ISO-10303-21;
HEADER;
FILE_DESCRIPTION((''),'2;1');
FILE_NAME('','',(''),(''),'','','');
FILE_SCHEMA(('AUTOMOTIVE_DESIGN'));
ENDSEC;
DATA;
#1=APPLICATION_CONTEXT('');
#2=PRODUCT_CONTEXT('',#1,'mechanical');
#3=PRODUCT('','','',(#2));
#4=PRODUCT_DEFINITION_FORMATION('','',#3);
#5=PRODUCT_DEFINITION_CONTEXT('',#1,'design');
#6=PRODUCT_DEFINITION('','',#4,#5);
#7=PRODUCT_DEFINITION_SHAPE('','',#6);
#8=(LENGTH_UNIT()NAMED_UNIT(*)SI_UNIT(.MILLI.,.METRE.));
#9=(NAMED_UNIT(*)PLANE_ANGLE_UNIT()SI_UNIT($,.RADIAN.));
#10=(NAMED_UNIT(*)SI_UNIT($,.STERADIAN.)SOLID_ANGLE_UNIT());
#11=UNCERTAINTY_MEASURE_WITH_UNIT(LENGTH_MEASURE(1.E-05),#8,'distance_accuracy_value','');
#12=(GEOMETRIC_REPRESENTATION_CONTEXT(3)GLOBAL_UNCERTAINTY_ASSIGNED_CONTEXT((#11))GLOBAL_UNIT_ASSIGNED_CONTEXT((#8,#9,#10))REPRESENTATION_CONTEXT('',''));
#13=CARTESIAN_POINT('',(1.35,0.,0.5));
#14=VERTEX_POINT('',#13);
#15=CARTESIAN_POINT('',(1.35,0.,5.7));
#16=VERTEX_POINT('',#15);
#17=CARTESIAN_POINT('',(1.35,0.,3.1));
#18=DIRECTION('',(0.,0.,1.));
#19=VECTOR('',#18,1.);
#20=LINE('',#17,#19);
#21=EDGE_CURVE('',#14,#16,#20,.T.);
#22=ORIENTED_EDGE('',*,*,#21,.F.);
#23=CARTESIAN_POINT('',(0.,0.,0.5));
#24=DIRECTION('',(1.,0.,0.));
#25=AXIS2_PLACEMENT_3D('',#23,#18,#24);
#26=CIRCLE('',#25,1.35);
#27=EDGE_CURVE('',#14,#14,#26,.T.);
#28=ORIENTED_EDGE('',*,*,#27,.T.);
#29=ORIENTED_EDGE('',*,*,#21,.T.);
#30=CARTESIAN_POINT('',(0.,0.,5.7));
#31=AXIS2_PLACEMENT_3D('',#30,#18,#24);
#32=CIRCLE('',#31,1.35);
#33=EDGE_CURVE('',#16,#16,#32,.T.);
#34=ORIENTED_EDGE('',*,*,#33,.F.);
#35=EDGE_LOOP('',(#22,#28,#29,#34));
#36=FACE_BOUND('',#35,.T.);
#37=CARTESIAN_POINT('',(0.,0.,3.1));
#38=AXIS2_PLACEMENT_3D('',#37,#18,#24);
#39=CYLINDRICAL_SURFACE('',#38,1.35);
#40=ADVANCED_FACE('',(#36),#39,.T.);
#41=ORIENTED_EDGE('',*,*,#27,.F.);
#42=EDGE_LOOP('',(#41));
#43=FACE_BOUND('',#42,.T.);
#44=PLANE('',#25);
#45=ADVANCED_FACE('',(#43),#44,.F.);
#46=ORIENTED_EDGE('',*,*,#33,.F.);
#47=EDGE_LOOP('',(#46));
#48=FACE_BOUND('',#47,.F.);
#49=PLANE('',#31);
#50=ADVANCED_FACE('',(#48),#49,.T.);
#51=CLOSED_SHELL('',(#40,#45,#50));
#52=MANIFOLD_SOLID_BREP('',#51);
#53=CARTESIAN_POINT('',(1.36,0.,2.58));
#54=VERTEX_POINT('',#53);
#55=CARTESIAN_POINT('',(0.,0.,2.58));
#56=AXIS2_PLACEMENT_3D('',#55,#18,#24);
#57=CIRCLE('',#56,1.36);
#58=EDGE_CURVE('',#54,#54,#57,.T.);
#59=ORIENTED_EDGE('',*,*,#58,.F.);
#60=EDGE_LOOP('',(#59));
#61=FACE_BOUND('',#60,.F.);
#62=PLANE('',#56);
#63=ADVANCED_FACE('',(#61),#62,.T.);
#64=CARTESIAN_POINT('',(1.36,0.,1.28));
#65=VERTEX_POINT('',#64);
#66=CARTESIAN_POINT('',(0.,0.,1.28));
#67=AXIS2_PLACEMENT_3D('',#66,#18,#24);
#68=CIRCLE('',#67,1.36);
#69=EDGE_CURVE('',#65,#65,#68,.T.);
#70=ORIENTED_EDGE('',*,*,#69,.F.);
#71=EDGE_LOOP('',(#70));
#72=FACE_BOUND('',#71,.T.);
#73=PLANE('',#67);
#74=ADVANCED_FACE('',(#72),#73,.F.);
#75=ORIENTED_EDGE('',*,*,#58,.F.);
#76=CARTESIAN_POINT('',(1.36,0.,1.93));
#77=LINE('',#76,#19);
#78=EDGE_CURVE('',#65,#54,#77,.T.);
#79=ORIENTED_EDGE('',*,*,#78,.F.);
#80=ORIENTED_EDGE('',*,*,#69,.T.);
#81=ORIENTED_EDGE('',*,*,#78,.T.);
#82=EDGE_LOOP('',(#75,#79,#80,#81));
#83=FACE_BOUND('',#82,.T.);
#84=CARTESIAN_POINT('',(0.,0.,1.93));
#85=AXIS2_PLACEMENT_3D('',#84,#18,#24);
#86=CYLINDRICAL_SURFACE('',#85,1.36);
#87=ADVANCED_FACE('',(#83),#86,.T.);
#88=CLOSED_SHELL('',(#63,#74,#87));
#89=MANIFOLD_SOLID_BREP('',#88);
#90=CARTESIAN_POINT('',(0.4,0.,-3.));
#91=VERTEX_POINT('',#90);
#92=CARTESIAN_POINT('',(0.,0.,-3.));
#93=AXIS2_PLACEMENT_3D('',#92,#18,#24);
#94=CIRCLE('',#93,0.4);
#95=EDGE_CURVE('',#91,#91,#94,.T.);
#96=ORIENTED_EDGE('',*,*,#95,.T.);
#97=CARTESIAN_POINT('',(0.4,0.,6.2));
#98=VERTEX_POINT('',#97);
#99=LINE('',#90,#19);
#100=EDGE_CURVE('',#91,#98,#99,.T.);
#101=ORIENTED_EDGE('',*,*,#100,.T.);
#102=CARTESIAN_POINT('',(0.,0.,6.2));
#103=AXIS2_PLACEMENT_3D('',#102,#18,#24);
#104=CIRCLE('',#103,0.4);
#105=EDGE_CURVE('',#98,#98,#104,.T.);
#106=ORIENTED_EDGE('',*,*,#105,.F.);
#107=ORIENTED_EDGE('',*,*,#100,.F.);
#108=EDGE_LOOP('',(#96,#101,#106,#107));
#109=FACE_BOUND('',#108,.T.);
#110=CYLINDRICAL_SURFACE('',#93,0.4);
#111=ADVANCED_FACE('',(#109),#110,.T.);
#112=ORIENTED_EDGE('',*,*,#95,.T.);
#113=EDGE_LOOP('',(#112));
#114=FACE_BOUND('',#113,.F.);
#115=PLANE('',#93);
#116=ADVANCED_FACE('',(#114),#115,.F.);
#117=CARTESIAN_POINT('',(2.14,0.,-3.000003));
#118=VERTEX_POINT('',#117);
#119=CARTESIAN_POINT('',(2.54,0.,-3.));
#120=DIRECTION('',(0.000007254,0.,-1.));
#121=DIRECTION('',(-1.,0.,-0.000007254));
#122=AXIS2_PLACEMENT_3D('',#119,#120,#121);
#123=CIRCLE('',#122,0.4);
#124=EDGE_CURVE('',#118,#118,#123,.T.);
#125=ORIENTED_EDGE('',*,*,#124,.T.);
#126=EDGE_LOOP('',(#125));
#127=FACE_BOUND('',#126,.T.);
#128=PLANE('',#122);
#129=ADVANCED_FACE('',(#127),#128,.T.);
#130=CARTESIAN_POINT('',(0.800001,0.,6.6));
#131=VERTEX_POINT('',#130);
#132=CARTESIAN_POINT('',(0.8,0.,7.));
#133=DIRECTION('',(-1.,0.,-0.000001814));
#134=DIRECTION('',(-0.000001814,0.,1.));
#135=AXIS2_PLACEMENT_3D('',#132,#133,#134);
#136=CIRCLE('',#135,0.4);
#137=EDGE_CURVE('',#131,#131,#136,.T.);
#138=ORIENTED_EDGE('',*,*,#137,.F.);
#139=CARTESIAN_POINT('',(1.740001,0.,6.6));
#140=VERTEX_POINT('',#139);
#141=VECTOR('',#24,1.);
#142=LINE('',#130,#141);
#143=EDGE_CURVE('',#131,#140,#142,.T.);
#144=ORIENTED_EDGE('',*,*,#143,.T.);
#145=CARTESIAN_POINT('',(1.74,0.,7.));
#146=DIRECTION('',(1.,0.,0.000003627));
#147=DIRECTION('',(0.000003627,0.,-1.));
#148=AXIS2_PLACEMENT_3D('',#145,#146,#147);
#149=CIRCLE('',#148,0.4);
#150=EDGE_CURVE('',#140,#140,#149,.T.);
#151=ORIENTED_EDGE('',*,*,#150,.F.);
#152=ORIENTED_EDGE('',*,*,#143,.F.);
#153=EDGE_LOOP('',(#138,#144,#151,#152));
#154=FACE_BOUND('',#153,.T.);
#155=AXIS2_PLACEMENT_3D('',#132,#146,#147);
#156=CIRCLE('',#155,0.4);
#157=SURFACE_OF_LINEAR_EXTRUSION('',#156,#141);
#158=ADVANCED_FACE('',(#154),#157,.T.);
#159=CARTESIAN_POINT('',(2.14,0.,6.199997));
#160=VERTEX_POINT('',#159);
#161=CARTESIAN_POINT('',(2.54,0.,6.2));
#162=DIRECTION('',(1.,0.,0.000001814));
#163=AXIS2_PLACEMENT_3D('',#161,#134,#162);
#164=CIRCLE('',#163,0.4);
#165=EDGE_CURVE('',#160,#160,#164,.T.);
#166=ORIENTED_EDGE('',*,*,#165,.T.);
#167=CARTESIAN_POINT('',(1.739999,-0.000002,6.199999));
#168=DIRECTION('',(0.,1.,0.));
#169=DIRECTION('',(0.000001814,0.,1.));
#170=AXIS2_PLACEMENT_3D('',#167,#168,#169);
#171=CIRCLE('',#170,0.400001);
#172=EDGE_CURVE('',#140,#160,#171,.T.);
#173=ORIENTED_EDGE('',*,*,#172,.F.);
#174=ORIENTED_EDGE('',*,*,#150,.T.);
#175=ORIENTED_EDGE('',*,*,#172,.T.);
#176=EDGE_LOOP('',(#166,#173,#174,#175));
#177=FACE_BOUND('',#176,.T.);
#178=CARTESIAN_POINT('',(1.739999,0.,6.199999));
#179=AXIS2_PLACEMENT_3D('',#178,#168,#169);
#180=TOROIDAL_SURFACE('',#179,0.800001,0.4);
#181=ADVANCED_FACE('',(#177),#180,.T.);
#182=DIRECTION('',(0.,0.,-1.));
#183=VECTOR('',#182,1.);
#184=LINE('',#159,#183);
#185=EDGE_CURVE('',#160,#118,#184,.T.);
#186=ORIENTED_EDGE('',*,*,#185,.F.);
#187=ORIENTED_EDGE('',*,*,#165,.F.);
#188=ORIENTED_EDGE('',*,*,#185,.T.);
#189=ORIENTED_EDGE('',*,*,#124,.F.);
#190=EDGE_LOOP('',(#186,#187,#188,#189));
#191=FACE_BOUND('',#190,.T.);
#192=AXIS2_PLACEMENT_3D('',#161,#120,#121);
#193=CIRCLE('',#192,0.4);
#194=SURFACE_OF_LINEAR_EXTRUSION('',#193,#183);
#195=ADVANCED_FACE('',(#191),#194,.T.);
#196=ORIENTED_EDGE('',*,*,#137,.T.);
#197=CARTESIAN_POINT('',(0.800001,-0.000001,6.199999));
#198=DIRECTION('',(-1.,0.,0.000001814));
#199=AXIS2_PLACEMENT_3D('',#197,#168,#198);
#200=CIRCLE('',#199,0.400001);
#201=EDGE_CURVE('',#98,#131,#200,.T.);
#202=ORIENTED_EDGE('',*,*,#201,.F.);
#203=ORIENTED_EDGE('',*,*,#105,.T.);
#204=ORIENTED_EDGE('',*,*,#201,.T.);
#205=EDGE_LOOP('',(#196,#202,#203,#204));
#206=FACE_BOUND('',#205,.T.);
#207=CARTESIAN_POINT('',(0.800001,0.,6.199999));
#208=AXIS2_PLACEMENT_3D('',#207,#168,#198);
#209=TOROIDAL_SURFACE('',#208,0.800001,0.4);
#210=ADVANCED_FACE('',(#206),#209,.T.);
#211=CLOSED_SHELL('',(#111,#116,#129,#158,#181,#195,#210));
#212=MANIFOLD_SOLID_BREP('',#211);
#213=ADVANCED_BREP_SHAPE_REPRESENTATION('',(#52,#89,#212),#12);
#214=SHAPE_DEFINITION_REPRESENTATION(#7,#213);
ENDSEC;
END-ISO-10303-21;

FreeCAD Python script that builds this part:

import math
import FreeCAD as App
import Part
import Sketcher

V = App.Vector
Q = App.Units.Quantity


def add_polygon(sketch, points):
    """Adds a closed chain of lines whose ends are joined by coincident constraints."""
    first, n = sketch.GeometryCount, len(points)
    for a, b in zip(points, points[1:] + points[:1]):
        sketch.addGeometry(Part.LineSegment(App.Vector(*a, 0), App.Vector(*b, 0)), False)
    for i in range(n):
        sketch.addConstraint(Sketcher.Constraint("Coincident", first + i, 2, first + (i + 1) % n, 1))

doc = App.newDocument("Part")
params = doc.addObject("Spreadsheet::Sheet", "Params")
for row, (alias, value) in enumerate([
    ("sketch1_diameter", "0.8 mm"),
    ("sketch2_radius", "0.800001 mm"),
    ("sketch2_height", "9.2 mm"),
    ("sketch2_width", "0.94 mm"),
    ("sketch3_height", "5.2 mm"),
    ("sketch3_width", "1.35 mm"),
    ("revolution_angle", "360 deg"),
    ("sketch4_height", "1.3 mm"),
    ("sketch4_width", "1.36 mm"),
    ("revolution2_angle", "360 deg"),
], start=1):
    params.set(f"A{row}", alias)
    params.set(f"B{row}", "=" + value)
    params.setAlias(f"B{row}", alias)

body = doc.addObject("PartDesign::Body", "Body")

# Sketch on XY plane
sketch1 = body.newObject("Sketcher::SketchObject", "Sketch")
sketch1.AttachmentSupport = (doc.getObject("XY_Plane"), [""])
sketch1.MapMode = "FlatFace"
sketch1.addGeometry(Part.Circle(V(0, 0, 0), V(0, 0, 1), 0.4), False)
sketch1.addConstraint([
    Sketcher.Constraint("Coincident", 0, 3, -1, 1),
    Sketcher.Constraint("Diameter", 0, Q("0.8 mm")),
])
sketch1.setExpression("Constraints[1]", "Params.sketch1_diameter")

# Sketch on XZ plane
sketch2 = body.newObject("Sketcher::SketchObject", "Sketch001")
sketch2.AttachmentSupport = (doc.getObject("XZ_Plane"), [""])
sketch2.MapMode = "FlatFace"
sketch2.addGeometry([
    Part.LineSegment(V(0, -3, 0), V(0, 6.2, 0)),  # 0
    Part.ArcOfCircle(Part.Circle(V(0.8, 6.2, 0), V(0, 0, 1), 0.8), math.radians(90), math.radians(180)),  # 1
    Part.LineSegment(V(0.8, 7, 0), V(1.7, 7, 0)),  # 2
    Part.ArcOfCircle(Part.Circle(V(1.7, 6.2, 0), V(0, 0, 1), 0.8), math.radians(0), math.radians(90)),  # 3
    Part.LineSegment(V(2.5, 6.2, 0), V(2.5, -3, 0)),  # 4
], False)
sketch2.addConstraint([
    Sketcher.Constraint("Tangent", 0, 2, 1, 2),
    Sketcher.Constraint("Tangent", 1, 1, 2, 1),
    Sketcher.Constraint("Tangent", 2, 2, 3, 2),
    Sketcher.Constraint("Tangent", 3, 1, 4, 1),
    Sketcher.Constraint("Vertical", 0),
    Sketcher.Constraint("Horizontal", 2),
    Sketcher.Constraint("Vertical", 4),
    Sketcher.Constraint("Equal", 1, 3),
    Sketcher.Constraint("PointOnObject", 0, 1, -2),
    Sketcher.Constraint("Horizontal", 0, 1, 4, 2),
    Sketcher.Constraint("Radius", 1, Q("0.800001 mm")),
    Sketcher.Constraint("DistanceY", 0, 1, 0, 2, Q("9.2 mm")),
    Sketcher.Constraint("DistanceY", 0, 1, -1, 1, Q("3 mm")),
    Sketcher.Constraint("DistanceX", 2, 1, 2, 2, Q("0.94 mm")),
])
sketch2.setExpression("Constraints[10]", "Params.sketch2_radius")
sketch2.setExpression("Constraints[11]", "Params.sketch2_height")
sketch2.setExpression("Constraints[13]", "Params.sketch2_width")
doc.recompute()

additivepipe = body.newObject("PartDesign::AdditivePipe", "AdditivePipe")
additivepipe.Profile = sketch1
additivepipe.Spine = (sketch2, ["Edge1", "Edge2", "Edge3", "Edge4", "Edge5"])
body2 = doc.addObject("PartDesign::Body", "Body001")

# Sketch on XZ plane
sketch3 = body2.newObject("Sketcher::SketchObject", "Sketch002")
sketch3.AttachmentSupport = (doc.getObject("XZ_Plane001"), [""])
sketch3.MapMode = "FlatFace"
add_polygon(sketch3, [(0, 5.7), (0, 0.5), (1.4, 0.5), (1.4, 5.7)])  # lines 0-3
sketch3.addConstraint([
    Sketcher.Constraint("Vertical", 0),
    Sketcher.Constraint("Horizontal", 1),
    Sketcher.Constraint("Vertical", 2),
    Sketcher.Constraint("Horizontal", 3),
    Sketcher.Constraint("PointOnObject", 0, 2, -2),
    Sketcher.Constraint("DistanceY", 0, 2, 0, 1, Q("5.2 mm")),
    Sketcher.Constraint("DistanceX", 1, 1, 1, 2, Q("1.35 mm")),
    Sketcher.Constraint("DistanceY", -1, 1, 0, 2, Q("0.5 mm")),
])
sketch3.setExpression("Constraints[9]", "Params.sketch3_height")
sketch3.setExpression("Constraints[10]", "Params.sketch3_width")
revolution = body2.newObject("PartDesign::Revolution", "Revolution")
revolution.Profile = sketch3
revolution.ReferenceAxis = (sketch3, ["V_Axis"])
revolution.setExpression("Angle", "Params.revolution_angle")
body3 = doc.addObject("PartDesign::Body", "Body002")

# Sketch on XZ plane
sketch4 = body3.newObject("Sketcher::SketchObject", "Sketch003")
sketch4.AttachmentSupport = (doc.getObject("XZ_Plane002"), [""])
sketch4.MapMode = "FlatFace"
add_polygon(sketch4, [(0, 2.6), (0, 1.3), (1.4, 1.3), (1.4, 2.6)])  # lines 0-3
sketch4.addConstraint([
    Sketcher.Constraint("Vertical", 0),
    Sketcher.Constraint("Horizontal", 1),
    Sketcher.Constraint("Vertical", 2),
    Sketcher.Constraint("Horizontal", 3),
    Sketcher.Constraint("PointOnObject", 0, 2, -2),
    Sketcher.Constraint("DistanceY", 0, 2, 0, 1, Q("1.3 mm")),
    Sketcher.Constraint("DistanceX", 1, 1, 1, 2, Q("1.36 mm")),
    Sketcher.Constraint("DistanceY", -1, 1, 0, 2, Q("1.28 mm")),
])
sketch4.setExpression("Constraints[9]", "Params.sketch4_height")
sketch4.setExpression("Constraints[10]", "Params.sketch4_width")
revolution2 = body3.newObject("PartDesign::Revolution", "Revolution001")
revolution2.Profile = sketch4
revolution2.ReferenceAxis = (sketch4, ["V_Axis"])
revolution2.setExpression("Angle", "Params.revolution2_angle")

doc.recompute()
